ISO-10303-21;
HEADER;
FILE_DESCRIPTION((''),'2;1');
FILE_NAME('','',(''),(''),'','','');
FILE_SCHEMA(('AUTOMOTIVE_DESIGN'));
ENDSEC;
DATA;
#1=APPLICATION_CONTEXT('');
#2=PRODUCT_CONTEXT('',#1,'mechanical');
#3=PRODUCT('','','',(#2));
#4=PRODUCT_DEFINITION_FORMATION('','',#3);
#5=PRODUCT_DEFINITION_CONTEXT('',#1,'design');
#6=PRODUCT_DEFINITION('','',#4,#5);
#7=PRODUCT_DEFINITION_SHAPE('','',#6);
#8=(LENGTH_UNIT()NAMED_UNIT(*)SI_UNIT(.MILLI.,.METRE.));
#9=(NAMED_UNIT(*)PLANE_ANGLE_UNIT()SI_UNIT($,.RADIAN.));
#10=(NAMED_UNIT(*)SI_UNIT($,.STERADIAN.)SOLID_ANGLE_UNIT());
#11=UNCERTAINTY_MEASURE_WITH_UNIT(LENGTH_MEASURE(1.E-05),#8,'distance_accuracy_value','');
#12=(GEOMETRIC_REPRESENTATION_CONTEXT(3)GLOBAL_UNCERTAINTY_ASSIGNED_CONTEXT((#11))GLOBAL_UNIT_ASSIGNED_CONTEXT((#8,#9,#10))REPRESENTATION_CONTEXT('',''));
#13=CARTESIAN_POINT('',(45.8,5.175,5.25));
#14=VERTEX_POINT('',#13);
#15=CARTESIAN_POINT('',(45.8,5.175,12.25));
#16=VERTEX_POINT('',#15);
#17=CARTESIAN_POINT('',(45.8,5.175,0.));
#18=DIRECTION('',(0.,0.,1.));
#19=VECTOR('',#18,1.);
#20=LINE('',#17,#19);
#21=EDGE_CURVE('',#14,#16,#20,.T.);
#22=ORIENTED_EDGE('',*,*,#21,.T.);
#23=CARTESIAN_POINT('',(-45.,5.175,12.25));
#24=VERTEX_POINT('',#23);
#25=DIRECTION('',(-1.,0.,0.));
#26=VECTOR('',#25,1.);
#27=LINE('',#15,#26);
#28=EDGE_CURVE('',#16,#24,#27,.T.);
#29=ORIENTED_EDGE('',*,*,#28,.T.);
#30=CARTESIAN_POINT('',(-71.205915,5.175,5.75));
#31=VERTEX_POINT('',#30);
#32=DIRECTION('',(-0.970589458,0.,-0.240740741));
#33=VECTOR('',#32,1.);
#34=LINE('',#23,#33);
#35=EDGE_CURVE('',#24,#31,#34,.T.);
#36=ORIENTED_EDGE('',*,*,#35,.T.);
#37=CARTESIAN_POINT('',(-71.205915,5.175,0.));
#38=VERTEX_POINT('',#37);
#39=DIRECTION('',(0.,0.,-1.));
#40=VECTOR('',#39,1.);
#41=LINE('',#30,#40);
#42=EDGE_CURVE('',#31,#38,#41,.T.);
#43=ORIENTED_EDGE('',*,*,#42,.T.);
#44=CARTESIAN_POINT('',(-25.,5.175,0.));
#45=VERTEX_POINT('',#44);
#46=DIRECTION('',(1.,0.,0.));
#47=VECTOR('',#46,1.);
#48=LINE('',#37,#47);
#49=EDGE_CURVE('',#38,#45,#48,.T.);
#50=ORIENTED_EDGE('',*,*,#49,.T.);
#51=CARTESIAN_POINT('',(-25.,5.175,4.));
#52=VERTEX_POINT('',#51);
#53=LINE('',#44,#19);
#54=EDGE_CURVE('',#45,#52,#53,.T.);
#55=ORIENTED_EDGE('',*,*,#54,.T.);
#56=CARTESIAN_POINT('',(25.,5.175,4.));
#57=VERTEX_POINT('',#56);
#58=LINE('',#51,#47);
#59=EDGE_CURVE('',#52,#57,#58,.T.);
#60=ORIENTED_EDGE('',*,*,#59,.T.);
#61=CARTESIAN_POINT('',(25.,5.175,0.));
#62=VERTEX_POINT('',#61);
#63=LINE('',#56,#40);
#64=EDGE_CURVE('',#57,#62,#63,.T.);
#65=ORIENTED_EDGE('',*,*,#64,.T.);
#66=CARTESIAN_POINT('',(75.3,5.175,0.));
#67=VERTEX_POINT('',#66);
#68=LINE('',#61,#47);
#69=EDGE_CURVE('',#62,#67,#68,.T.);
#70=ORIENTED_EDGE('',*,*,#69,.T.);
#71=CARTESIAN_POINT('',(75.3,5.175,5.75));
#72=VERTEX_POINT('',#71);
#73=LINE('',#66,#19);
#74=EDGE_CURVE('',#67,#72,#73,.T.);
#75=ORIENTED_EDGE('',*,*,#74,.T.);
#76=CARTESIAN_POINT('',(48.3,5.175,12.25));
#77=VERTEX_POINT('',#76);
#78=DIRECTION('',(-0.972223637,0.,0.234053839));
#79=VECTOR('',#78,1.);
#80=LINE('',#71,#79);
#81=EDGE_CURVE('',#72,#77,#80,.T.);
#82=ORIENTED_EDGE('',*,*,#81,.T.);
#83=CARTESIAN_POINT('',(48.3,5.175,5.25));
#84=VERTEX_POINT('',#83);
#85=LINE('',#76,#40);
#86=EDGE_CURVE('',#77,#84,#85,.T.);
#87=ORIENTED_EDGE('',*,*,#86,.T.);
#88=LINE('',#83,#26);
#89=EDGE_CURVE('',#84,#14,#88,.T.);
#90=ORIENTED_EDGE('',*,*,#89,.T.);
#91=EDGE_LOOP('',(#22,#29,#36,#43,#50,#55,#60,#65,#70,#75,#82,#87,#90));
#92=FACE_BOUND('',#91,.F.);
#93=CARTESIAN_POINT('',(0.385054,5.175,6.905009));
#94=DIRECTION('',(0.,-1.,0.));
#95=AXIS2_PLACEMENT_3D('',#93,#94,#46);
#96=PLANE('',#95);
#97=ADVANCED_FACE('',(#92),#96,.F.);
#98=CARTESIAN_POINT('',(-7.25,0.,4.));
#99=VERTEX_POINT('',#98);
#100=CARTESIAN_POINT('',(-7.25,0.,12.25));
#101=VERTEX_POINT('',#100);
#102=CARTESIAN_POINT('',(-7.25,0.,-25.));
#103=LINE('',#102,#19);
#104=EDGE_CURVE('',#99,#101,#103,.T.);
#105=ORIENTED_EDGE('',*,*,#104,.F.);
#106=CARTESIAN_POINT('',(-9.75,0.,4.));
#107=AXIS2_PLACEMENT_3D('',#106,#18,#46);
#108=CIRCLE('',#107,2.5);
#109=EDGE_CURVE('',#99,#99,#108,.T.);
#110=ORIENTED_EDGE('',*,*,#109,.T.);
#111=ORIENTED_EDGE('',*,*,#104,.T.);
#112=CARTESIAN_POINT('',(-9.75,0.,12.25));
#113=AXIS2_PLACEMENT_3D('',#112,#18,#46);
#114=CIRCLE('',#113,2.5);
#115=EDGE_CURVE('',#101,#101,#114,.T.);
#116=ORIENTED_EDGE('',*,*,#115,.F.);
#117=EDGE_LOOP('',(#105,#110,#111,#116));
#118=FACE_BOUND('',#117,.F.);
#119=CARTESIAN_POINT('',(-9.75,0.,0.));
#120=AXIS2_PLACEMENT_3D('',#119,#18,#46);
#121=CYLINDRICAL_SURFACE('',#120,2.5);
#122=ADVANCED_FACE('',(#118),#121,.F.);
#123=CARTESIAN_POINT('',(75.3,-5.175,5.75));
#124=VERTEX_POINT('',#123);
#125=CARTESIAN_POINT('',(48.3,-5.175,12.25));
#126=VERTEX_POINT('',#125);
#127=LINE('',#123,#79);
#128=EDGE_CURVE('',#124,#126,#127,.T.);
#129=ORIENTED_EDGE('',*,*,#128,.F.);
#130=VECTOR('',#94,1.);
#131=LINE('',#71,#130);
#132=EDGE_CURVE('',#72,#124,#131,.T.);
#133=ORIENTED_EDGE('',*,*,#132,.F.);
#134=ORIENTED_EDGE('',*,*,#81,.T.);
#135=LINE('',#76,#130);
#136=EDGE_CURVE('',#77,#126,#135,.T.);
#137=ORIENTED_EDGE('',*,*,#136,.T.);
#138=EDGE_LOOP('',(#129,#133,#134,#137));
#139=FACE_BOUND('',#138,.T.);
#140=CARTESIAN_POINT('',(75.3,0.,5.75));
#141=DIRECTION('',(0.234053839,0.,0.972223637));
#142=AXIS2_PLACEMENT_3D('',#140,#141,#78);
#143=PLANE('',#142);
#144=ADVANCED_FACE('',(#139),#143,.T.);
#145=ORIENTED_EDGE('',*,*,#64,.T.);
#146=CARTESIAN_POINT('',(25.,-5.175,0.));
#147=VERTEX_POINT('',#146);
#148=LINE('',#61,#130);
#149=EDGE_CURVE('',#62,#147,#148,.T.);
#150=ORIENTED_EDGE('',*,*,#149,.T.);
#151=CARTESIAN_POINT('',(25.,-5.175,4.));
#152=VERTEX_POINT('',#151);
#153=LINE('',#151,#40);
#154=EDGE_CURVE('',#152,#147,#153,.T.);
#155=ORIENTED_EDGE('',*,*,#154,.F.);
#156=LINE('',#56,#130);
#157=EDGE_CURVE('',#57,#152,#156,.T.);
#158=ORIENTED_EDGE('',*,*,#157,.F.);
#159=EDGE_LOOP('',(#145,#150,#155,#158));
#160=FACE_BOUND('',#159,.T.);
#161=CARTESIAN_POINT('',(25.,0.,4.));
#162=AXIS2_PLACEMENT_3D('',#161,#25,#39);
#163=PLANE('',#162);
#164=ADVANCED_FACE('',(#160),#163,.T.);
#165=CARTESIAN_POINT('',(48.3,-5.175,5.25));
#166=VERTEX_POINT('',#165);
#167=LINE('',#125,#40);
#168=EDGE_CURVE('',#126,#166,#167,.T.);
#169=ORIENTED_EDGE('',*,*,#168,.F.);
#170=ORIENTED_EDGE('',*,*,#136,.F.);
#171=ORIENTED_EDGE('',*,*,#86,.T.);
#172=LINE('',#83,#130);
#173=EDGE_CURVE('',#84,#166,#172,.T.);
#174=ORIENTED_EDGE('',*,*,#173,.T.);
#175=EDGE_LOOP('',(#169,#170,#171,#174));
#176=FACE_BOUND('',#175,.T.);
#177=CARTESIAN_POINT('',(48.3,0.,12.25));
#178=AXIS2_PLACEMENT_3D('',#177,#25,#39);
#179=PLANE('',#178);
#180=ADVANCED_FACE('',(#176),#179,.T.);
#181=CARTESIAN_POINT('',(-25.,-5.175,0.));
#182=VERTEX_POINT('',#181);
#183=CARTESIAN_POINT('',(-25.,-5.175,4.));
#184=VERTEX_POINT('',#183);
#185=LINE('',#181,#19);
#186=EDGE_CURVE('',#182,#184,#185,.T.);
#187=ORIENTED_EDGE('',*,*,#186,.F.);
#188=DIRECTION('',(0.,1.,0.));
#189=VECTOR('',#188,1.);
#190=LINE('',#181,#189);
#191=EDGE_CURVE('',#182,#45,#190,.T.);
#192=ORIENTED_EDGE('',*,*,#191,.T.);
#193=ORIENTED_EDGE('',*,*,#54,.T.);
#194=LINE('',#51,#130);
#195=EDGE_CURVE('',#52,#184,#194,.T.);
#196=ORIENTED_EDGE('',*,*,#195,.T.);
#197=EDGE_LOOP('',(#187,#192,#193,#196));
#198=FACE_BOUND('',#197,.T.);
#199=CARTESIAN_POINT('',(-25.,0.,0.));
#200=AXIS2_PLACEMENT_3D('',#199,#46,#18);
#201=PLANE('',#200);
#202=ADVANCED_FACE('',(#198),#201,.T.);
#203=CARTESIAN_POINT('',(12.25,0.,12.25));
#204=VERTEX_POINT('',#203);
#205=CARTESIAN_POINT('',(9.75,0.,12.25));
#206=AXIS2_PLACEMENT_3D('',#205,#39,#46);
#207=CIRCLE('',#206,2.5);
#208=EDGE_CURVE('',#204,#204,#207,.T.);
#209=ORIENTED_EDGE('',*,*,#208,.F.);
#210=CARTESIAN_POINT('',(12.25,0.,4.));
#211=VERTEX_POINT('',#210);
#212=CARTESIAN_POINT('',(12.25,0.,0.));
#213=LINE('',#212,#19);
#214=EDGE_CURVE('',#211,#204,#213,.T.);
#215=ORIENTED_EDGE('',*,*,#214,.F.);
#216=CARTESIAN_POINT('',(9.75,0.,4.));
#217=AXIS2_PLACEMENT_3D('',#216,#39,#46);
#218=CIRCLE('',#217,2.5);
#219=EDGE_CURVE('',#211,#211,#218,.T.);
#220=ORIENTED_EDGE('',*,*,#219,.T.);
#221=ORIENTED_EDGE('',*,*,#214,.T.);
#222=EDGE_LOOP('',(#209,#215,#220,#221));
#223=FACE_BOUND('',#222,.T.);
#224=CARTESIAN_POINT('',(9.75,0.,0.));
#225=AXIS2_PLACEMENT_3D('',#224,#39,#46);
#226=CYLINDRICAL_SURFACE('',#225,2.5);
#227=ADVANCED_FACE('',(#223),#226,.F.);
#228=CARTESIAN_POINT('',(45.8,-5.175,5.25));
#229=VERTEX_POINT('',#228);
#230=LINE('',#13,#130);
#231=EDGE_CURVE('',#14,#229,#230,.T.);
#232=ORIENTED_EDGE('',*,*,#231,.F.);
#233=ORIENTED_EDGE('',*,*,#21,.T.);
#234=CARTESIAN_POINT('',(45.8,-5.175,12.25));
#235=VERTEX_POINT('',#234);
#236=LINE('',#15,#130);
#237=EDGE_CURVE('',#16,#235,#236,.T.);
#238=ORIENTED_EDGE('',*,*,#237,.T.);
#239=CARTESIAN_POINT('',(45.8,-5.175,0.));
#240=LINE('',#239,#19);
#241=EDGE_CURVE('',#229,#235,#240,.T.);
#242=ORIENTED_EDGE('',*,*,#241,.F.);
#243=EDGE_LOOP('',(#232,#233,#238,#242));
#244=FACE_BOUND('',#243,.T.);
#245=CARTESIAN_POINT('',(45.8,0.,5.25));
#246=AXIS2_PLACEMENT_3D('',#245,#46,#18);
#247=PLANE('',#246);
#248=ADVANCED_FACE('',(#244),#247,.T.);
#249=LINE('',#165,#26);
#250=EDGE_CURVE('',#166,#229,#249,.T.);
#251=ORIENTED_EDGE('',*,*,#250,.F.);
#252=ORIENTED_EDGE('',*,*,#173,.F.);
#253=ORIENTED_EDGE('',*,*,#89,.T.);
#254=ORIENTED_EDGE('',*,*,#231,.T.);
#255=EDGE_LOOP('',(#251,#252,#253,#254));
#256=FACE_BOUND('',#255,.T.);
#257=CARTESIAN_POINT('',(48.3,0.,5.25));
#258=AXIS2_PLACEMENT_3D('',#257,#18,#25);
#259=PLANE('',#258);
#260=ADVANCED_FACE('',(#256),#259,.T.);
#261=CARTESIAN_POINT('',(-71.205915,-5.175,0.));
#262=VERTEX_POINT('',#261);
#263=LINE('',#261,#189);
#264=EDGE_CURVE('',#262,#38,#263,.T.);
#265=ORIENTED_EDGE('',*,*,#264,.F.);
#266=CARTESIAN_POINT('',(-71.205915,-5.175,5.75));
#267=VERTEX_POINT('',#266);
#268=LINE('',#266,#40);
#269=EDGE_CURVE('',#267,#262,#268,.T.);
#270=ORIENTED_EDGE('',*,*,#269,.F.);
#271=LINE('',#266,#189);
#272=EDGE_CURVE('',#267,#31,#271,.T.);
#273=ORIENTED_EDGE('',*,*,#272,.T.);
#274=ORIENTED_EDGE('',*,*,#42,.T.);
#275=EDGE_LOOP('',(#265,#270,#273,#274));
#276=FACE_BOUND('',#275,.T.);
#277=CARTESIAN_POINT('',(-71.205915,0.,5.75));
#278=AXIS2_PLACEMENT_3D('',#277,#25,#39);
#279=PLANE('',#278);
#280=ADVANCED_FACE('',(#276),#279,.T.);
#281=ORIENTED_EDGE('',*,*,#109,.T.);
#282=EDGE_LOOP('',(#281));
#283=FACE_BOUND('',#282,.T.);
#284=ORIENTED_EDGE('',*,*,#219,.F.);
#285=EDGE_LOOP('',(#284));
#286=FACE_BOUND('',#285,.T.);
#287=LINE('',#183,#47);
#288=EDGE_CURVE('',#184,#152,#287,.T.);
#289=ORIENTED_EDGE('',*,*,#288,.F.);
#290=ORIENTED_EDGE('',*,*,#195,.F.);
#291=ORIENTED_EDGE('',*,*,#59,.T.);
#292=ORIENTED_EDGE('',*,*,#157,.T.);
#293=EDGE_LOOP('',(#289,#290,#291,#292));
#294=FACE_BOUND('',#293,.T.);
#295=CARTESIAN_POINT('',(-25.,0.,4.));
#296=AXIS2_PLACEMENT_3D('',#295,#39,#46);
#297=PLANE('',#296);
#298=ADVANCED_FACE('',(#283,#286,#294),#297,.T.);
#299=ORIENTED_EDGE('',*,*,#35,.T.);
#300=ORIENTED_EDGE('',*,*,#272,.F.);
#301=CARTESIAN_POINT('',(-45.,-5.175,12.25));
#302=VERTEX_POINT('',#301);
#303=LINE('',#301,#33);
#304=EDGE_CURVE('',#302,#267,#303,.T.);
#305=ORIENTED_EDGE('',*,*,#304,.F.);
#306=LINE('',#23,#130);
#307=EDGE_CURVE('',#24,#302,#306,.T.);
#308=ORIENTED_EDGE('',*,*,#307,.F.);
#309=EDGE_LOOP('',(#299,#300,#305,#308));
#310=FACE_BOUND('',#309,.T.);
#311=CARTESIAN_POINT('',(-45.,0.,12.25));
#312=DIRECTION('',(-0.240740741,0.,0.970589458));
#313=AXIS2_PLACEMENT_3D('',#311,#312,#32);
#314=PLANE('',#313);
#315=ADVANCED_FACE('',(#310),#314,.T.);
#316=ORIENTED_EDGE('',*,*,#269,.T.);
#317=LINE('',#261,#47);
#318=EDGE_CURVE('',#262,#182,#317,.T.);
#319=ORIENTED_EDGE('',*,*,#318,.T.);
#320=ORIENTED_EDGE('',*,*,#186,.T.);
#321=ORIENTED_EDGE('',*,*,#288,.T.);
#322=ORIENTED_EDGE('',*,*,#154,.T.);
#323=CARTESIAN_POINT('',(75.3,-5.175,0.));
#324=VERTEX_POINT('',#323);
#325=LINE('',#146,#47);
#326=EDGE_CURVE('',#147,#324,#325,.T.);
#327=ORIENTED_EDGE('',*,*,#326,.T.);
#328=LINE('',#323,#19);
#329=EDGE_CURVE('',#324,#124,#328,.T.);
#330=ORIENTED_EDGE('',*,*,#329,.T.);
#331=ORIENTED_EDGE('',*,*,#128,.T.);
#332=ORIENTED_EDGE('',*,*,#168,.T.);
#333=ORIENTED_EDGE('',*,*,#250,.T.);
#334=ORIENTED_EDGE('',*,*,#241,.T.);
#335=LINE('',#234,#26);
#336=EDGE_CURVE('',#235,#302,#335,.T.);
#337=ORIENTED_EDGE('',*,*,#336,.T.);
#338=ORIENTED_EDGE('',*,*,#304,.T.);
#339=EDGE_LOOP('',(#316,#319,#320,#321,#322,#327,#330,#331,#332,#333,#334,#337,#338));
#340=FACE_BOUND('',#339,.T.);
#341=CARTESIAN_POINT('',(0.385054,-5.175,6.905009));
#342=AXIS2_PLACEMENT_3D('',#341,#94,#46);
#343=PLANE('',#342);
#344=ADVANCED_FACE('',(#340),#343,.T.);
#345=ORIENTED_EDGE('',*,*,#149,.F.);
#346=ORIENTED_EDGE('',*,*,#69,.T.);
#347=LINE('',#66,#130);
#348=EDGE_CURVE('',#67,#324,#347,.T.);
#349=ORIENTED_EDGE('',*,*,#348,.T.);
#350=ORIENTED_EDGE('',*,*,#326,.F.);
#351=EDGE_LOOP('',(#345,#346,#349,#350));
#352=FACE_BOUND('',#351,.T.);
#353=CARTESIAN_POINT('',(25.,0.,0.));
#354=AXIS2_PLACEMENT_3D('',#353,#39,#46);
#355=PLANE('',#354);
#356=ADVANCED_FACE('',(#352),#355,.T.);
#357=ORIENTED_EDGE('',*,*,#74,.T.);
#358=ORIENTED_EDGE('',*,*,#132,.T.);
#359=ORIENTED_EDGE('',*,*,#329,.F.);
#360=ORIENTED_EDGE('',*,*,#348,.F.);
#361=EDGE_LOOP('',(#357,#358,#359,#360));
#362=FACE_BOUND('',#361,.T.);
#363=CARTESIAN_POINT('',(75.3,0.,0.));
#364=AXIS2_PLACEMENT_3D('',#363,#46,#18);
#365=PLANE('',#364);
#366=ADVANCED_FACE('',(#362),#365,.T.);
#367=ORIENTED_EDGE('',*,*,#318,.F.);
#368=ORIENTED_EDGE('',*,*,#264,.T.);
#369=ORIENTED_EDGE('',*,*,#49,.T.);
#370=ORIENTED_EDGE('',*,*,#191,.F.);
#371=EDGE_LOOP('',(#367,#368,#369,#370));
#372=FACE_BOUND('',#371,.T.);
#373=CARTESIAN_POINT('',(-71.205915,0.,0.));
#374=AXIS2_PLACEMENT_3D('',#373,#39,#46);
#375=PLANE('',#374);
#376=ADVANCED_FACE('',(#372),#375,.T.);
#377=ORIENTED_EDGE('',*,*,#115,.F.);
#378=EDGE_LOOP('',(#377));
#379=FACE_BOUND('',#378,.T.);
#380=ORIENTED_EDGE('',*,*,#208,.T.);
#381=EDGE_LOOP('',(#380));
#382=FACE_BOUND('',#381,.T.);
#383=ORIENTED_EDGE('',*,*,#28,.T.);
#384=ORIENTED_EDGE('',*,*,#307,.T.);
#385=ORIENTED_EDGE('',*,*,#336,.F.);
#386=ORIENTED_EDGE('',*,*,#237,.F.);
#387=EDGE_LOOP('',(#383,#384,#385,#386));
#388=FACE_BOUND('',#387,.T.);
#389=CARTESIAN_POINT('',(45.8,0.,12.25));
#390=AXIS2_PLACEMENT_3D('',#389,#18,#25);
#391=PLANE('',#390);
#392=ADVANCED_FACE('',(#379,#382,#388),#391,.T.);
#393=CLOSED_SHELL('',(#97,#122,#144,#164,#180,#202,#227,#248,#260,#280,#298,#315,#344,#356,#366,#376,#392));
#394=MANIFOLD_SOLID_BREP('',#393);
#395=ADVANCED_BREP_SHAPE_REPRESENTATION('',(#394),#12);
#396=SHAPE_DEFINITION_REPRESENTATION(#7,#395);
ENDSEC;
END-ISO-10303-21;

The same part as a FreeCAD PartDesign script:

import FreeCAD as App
import Part
import Sketcher

V = App.Vector


def add_polygon(sketch, points):
    """Adds a closed chain of lines whose ends are joined by coincident constraints."""
    first, n = sketch.GeometryCount, len(points)
    for a, b in zip(points, points[1:] + points[:1]):
        sketch.addGeometry(Part.LineSegment(App.Vector(*a, 0), App.Vector(*b, 0)), False)
    for i in range(n):
        sketch.addConstraint(Sketcher.Constraint("Coincident", first + i, 2, first + (i + 1) % n, 1))

doc = App.newDocument("Part")
body = doc.addObject("PartDesign::Body", "Body")

sketch1 = body.newObject("Sketcher::SketchObject", "Sketch")
sketch1.AttachmentSupport = (doc.getObject("XZ_Plane"), [""])
sketch1.MapMode = "FlatFace"
add_polygon(sketch1, [(-25, 0), (-25, 4), (25, 4), (25, 0), (75.3, 0), (75.3, 5.8), (48.3, 12.2), (48.3, 5.2), (45.8, 5.2), (45.8, 12.2), (-45, 12.2), (-71.2, 5.8), (-71.2, 0)])
sketch1.addConstraint(Sketcher.Constraint("Vertical", 0))
sketch1.addConstraint(Sketcher.Constraint("Horizontal", 1))
sketch1.addConstraint(Sketcher.Constraint("Vertical", 2))
sketch1.addConstraint(Sketcher.Constraint("Horizontal", 3))
sketch1.addConstraint(Sketcher.Constraint("Vertical", 4))
sketch1.addConstraint(Sketcher.Constraint("Vertical", 6))
sketch1.addConstraint(Sketcher.Constraint("Horizontal", 7))
sketch1.addConstraint(Sketcher.Constraint("Vertical", 8))
sketch1.addConstraint(Sketcher.Constraint("Horizontal", 9))
sketch1.addConstraint(Sketcher.Constraint("Vertical", 11))
sketch1.addConstraint(Sketcher.Constraint("Horizontal", 12))
sketch1.addConstraint(Sketcher.Constraint("Symmetric", 2, 2, 12, 2, -1, 1))
sketch1.addConstraint(Sketcher.Constraint("PointOnObject", 2, 2, -1))
sketch1.addConstraint(Sketcher.Constraint("Horizontal", 5, 2, 8, 2))
sketch1.addConstraint(Sketcher.Constraint("Horizontal", 4, 2, 10, 2))
sketch1.addConstraint(Sketcher.Constraint("DistanceX", 1, 1, 1, 2, 50.0))
sketch1.addConstraint(Sketcher.Constraint("DistanceY", 0, 1, 0, 2, 4.0))
sketch1.addConstraint(Sketcher.Constraint("DistanceY", 6, 2, 6, 1, 7.0))
sketch1.addConstraint(Sketcher.Constraint("Distance", 10, 27.0))
sketch1.addConstraint(Sketcher.Constraint("DistanceX", 3, 1, 3, 2, 50.3))
sketch1.addConstraint(Sketcher.Constraint("DistanceX", 7, 2, 7, 1, 2.5))
sketch1.addConstraint(Sketcher.Constraint("DistanceX", 9, 2, 9, 1, 90.8))
sketch1.addConstraint(Sketcher.Constraint("DistanceX", 9, 2, -1, 1, 45.0))
sketch1.addConstraint(Sketcher.Constraint("DistanceY", 4, 1, 4, 2, 5.75))
sketch1.addConstraint(Sketcher.Constraint("DistanceY", 4, 2, 5, 2, 6.5))
pad1 = body.newObject("PartDesign::Pad", "Pad")
pad1.Profile = sketch1
pad1.Length = 10.35
pad1.Midplane = True

sketch2 = body.newObject("Sketcher::SketchObject", "Sketch001")
sketch2.AttachmentSupport = (doc.getObject("XY_Plane"), [""])
sketch2.MapMode = "FlatFace"
sketch2.addGeometry(Part.Circle(V(9.8, 0, 0), V(0, 0, 1), 2.5), False)
sketch2.addGeometry(Part.Circle(V(-9.8, 0, 0), V(0, 0, 1), 2.5), False)
sketch2.addConstraint(Sketcher.Constraint("Equal", 0, 1))
sketch2.addConstraint(Sketcher.Constraint("Symmetric", 0, 3, 1, 3, -1, 1))
sketch2.addConstraint(Sketcher.Constraint("PointOnObject", 0, 3, -1))
sketch2.addConstraint(Sketcher.Constraint("Diameter", 0, 5.0))
sketch2.addConstraint(Sketcher.Constraint("DistanceX", 1, 3, 0, 3, 19.5))
pocket1 = body.newObject("PartDesign::Pocket", "Pocket")
pocket1.Profile = sketch2
pocket1.Length = 50
pocket1.Midplane = True

doc.recompute()
